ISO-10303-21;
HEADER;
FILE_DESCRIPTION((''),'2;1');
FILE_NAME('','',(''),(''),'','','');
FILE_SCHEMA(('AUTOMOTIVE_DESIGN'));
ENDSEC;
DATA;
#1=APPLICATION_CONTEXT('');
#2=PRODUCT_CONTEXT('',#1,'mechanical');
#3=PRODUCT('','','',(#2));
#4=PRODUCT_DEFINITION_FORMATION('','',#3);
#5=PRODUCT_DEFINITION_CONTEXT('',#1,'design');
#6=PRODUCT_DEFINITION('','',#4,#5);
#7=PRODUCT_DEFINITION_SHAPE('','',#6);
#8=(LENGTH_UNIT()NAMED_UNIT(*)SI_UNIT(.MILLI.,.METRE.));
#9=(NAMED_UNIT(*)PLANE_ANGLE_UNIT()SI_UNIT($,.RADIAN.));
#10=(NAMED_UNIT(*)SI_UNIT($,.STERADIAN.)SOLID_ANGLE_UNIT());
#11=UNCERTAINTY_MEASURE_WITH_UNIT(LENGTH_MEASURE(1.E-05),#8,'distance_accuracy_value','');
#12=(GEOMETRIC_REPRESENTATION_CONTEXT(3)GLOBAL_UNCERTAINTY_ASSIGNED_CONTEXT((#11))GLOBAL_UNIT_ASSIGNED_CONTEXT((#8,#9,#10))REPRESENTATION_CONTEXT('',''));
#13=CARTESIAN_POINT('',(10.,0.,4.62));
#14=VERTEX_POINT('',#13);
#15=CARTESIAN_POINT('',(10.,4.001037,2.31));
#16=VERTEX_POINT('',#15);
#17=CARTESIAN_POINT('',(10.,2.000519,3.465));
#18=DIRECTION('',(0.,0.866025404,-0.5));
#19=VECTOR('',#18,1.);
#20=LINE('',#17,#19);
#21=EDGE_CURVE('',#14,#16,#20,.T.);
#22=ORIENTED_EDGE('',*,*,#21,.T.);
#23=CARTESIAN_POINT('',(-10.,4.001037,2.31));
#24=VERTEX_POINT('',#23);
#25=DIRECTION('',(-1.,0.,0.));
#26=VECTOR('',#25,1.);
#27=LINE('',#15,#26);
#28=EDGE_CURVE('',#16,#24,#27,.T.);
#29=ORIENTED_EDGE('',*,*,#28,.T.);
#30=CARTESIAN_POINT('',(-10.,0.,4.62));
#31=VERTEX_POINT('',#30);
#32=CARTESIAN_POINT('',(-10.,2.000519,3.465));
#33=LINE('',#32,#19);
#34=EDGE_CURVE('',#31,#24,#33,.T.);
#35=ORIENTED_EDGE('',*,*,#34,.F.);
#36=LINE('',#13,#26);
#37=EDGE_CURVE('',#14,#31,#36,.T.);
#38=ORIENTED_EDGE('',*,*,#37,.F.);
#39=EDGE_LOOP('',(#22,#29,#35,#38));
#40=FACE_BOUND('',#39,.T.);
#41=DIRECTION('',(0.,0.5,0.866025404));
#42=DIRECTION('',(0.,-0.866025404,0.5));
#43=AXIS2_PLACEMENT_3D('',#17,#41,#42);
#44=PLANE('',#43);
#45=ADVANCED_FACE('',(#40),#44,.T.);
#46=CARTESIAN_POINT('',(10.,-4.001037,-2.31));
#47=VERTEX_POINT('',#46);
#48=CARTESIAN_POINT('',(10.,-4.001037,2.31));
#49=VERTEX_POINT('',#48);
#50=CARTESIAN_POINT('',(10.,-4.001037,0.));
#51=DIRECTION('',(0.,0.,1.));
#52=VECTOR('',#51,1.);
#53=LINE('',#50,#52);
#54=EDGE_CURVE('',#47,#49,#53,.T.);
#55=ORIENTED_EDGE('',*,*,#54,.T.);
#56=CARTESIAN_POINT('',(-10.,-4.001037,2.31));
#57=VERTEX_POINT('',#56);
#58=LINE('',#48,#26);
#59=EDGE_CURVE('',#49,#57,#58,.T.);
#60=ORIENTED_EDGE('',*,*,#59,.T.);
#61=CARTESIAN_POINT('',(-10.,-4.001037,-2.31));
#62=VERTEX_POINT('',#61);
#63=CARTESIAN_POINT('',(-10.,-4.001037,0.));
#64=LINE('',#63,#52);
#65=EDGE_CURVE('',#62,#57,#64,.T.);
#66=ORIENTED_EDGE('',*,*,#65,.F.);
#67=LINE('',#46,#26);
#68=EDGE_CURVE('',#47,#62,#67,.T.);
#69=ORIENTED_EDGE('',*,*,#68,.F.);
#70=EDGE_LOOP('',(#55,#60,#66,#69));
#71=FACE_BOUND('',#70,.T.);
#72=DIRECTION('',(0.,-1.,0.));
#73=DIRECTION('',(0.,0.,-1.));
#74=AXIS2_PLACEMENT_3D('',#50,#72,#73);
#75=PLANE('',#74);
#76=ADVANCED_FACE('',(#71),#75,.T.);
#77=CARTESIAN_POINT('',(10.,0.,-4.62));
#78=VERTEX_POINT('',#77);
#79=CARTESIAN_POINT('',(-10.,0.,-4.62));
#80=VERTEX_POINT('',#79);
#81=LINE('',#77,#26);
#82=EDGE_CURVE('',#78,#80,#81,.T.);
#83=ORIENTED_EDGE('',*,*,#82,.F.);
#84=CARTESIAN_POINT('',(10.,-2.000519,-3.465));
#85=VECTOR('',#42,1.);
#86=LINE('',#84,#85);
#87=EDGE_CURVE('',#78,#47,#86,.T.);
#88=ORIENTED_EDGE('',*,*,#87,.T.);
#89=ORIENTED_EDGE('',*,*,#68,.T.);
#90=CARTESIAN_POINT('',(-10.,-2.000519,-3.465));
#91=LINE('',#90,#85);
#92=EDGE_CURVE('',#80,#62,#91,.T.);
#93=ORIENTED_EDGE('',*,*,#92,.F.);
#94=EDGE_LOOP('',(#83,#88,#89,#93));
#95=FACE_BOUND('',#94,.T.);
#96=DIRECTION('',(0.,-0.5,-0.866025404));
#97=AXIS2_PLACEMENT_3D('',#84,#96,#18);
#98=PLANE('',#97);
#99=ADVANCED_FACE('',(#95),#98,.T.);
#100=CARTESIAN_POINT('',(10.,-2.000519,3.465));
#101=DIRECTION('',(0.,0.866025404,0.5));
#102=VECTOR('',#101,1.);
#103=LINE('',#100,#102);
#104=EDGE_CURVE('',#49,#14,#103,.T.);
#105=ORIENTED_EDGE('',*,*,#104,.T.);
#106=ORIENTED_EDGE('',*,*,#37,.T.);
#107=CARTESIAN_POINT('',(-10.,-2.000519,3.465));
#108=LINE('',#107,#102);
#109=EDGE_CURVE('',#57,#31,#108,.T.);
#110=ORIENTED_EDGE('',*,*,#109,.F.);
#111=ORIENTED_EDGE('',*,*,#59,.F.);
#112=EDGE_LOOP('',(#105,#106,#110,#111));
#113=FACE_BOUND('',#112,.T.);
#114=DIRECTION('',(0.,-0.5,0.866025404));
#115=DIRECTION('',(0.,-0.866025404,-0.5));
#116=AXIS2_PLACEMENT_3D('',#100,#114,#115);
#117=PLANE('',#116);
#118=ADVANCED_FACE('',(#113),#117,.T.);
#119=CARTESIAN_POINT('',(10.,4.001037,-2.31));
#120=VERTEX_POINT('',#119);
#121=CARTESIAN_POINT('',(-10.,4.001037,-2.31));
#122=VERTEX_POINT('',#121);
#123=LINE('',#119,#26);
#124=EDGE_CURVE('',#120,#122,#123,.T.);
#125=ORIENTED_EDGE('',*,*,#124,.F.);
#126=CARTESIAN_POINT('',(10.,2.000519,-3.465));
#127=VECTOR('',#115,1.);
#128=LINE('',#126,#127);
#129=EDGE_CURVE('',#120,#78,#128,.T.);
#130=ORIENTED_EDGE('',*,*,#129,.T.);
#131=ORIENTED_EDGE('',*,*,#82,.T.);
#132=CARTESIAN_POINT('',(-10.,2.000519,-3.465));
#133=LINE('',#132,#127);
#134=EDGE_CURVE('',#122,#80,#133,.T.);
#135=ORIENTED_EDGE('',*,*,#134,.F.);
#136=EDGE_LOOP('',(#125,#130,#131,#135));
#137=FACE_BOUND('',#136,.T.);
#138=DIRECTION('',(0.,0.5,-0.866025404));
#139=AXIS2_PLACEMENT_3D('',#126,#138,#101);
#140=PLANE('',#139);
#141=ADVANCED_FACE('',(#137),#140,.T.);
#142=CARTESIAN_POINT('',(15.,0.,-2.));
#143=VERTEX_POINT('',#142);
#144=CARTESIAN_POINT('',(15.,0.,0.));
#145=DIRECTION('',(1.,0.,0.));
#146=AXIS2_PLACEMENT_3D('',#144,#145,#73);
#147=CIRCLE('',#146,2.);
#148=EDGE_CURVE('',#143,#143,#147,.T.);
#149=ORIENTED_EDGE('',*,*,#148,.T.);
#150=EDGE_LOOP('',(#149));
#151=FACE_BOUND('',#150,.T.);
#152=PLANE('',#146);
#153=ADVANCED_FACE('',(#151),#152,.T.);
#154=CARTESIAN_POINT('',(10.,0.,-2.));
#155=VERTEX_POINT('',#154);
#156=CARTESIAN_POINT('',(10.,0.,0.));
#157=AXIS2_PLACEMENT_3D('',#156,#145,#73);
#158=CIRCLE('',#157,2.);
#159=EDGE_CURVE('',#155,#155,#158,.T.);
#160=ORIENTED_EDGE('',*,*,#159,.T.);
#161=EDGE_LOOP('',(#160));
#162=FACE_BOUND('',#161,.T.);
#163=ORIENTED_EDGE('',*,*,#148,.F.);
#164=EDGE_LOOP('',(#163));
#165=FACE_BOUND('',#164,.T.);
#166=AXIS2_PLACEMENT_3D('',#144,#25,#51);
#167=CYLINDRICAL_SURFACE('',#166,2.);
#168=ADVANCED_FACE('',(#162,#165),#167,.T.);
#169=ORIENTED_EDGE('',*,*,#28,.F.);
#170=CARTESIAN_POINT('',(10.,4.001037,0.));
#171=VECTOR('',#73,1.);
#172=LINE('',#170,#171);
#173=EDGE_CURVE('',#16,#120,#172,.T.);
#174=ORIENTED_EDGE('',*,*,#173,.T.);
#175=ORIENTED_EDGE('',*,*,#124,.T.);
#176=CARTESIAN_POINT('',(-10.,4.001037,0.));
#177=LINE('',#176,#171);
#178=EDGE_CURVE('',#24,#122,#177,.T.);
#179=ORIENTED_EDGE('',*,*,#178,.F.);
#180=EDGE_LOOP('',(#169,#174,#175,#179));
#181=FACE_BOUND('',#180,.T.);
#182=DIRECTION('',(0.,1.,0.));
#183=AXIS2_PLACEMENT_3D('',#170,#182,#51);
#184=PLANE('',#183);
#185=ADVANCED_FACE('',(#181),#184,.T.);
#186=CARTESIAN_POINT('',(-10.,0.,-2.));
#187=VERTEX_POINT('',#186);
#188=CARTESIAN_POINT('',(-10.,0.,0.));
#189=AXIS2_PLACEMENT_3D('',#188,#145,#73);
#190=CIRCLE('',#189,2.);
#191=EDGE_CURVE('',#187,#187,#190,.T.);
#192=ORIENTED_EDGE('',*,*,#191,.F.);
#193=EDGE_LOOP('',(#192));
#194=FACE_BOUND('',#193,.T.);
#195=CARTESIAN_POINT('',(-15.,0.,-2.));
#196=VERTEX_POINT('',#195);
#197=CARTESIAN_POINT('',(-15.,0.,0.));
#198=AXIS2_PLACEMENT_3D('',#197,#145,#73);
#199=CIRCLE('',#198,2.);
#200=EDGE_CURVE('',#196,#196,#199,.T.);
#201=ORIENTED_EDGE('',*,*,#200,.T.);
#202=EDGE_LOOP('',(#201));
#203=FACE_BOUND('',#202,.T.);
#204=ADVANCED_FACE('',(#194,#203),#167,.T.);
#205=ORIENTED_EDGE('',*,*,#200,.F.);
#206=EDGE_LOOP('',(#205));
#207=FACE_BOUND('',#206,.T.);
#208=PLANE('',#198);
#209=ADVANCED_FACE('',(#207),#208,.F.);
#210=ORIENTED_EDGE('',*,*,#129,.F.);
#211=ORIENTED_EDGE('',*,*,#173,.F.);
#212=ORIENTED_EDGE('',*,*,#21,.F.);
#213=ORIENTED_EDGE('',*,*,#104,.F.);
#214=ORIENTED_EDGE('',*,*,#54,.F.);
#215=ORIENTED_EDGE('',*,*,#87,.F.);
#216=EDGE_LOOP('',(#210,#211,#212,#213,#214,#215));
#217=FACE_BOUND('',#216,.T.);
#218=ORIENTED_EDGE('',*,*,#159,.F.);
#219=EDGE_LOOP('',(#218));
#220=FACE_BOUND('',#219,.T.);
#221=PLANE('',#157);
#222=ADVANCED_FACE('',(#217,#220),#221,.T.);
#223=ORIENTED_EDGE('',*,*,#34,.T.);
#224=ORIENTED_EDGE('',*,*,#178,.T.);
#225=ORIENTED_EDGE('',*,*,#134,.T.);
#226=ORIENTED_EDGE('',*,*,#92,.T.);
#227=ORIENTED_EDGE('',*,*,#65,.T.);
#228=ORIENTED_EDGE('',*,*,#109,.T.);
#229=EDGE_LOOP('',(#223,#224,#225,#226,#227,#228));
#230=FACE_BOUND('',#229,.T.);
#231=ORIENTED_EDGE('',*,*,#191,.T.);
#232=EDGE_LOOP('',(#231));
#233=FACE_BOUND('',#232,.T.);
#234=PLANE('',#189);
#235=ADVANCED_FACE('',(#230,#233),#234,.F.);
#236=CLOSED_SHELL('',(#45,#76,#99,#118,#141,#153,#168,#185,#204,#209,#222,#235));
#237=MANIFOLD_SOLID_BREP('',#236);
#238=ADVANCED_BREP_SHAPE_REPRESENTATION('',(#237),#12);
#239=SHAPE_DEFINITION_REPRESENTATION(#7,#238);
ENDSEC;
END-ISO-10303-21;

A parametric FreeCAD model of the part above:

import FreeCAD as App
import Part
import Sketcher
Q = App.Units.Quantity


def add_polygon(sketch, points):
    """Adds a closed chain of lines whose ends are joined by coincident constraints."""
    first, n = sketch.GeometryCount, len(points)
    for a, b in zip(points, points[1:] + points[:1]):
        sketch.addGeometry(Part.LineSegment(App.Vector(*a, 0), App.Vector(*b, 0)), False)
    for i in range(n):
        sketch.addConstraint(Sketcher.Constraint("Coincident", first + i, 2, first + (i + 1) % n, 1))

doc = App.newDocument("Part")
body = doc.addObject("PartDesign::Body", "Body")

# Sketch on YZ plane
sketch1 = body.newObject("Sketcher::SketchObject", "Sketch")
sketch1.AttachmentSupport = (doc.getObject("YZ_Plane"), [""])
sketch1.MapMode = "FlatFace"
sketch1.addGeometry(Part.Circle(App.Vector(0, 0, 0), App.Vector(0, 0, 1), 2), False)
sketch1.addConstraint(Sketcher.Constraint("Coincident", 0, 3, -1, 1))
sketch1.addConstraint(Sketcher.Constraint("Diameter", 0, 4.0))
pad1 = body.newObject("PartDesign::Pad", "Pad")
pad1.Profile = sketch1
pad1.Length = 30
pad1.Midplane = True

# Sketch on YZ plane
sketch2 = body.newObject("Sketcher::SketchObject", "Sketch001")
sketch2.AttachmentSupport = (doc.getObject("YZ_Plane"), [""])
sketch2.MapMode = "FlatFace"
add_polygon(sketch2, [(4, -2.3), (4, 2.3), (0, 4.6), (-4, 2.3), (-4, -2.3), (0, -4.6)])  # lines 0-5
sketch2.addConstraint(Sketcher.Constraint("Vertical", 0))
sketch2.addConstraint(Sketcher.Constraint("Vertical", 3))
sketch2.addConstraint(Sketcher.Constraint("Symmetric", 0, 2, 3, 2, -1, 1))
sketch2.addConstraint(Sketcher.Constraint("Symmetric", 1, 2, 4, 2, -1, 1))
sketch2.addConstraint(Sketcher.Constraint("PointOnObject", 1, 2, -2))
sketch2.addConstraint(Sketcher.Constraint("Parallel", 2, 5))
sketch2.addConstraint(Sketcher.Constraint("Horizontal", 0, 2, 2, 2))
sketch2.addConstraint(Sketcher.Constraint("Angle", 1, Q("150 deg")))
sketch2.addConstraint(Sketcher.Constraint("DistanceY", 0, 1, 0, 2, 4.62))
sketch2.addConstraint(Sketcher.Constraint("Distance", 1, 4.62))
pad2 = body.newObject("PartDesign::Pad", "Pad001")
pad2.Profile = sketch2
pad2.Length = 20
pad2.Midplane = True

doc.recompute()
